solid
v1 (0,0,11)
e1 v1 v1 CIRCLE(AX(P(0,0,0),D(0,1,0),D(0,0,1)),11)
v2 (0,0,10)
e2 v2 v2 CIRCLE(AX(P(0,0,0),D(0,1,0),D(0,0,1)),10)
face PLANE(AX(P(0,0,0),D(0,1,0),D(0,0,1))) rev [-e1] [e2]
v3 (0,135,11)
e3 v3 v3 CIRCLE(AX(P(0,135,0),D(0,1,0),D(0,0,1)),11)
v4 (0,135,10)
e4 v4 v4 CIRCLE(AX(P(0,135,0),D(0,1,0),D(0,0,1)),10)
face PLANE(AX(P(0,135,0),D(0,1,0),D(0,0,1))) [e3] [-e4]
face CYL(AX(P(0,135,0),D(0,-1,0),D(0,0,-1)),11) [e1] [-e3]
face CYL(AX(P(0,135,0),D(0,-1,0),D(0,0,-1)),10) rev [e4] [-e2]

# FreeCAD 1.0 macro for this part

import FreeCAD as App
import Part
import Sketcher

V = App.Vector

doc = App.newDocument("Part")
params = doc.addObject("Spreadsheet::Sheet", "Params")
for row, (alias, value) in enumerate([
    ("sketch1_diameter", "22 mm"),
    ("sketch1_diameter2", "20 mm"),
    ("pad1_length", "135 mm"),
], start=1):
    params.set(f"A{row}", alias)
    params.set(f"B{row}", "=" + value)
    params.setAlias(f"B{row}", alias)

body = doc.addObject("PartDesign::Body", "Body")

sketch1 = doc.addObject("Sketcher::SketchObject", "Sketch")
body.addObject(sketch1)
sketch1.AttachmentSupport = (doc.XZ_Plane, [""])
sketch1.MapMode = "FlatFace"
sketch1.addGeometry([
    Part.Circle(V(0, 0, 0), V(0, 0, 1), 11),
    Part.Circle(V(0, 0, 0), V(0, 0, 1), 10),
], False)
sketch1.addConstraint([
    Sketcher.Constraint("Coincident", 0, 3, -1, 1),
    Sketcher.Constraint("Coincident", 1, 3, -1, 1),
    Sketcher.Constraint("Diameter", 0, 22.0),
    Sketcher.Constraint("Diameter", 1, 20.0),
])
sketch1.setExpression("Constraints[2]", "Params.sketch1_diameter")
sketch1.setExpression("Constraints[3]", "Params.sketch1_diameter2")
pad1 = doc.addObject("PartDesign::Pad", "Pad")
body.addObject(pad1)
pad1.Profile = sketch1
pad1.setExpression("Length", "Params.pad1_length")
pad1.Reversed = True

doc.recompute()
